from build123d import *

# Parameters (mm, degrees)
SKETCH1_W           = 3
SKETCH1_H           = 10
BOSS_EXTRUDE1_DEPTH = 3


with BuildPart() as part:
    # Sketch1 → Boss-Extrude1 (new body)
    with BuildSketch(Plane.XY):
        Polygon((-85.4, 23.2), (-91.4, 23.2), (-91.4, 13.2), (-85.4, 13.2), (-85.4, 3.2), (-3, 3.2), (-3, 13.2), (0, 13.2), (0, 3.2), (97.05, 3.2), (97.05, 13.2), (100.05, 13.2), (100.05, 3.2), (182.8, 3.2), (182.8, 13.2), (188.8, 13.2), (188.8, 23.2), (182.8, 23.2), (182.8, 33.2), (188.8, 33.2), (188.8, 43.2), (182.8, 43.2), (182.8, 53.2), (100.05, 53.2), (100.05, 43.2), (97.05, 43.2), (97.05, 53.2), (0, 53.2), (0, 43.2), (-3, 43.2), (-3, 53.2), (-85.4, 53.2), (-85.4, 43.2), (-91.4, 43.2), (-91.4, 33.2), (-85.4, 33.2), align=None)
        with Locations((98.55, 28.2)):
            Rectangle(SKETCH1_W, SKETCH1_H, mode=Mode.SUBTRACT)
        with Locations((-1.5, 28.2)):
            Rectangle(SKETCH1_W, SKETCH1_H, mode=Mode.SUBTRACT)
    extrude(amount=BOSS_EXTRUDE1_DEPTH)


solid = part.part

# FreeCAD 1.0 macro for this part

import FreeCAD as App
import Part
import Sketcher
Q = App.Units.Quantity


def add_polygon(sketch, points):
    """Adds a closed chain of lines whose ends are joined by coincident constraints."""
    first, n = sketch.GeometryCount, len(points)
    for a, b in zip(points, points[1:] + points[:1]):
        sketch.addGeometry(Part.LineSegment(App.Vector(*a, 0), App.Vector(*b, 0)), False)
    for i in range(n):
        sketch.addConstraint(Sketcher.Constraint("Coincident", first + i, 2, first + (i + 1) % n, 1))

doc = App.newDocument("Part")
params = doc.addObject("Spreadsheet::Sheet", "Params")
for row, (alias, value) in enumerate([
    ("sketch1_width", "6 mm"),
    ("sketch1_width2", "3 mm"),
    ("sketch1_height", "10 mm"),
    ("sketch1_width3", "82.4 mm"),
    ("sketch1_width4", "97.05 mm"),
    ("pad1_length", "3 mm"),
], start=1):
    params.set(f"A{row}", alias)
    params.set(f"B{row}", "=" + value)
    params.setAlias(f"B{row}", alias)

body = doc.addObject("PartDesign::Body", "Body")

sketch1 = body.newObject("Sketcher::SketchObject", "Sketch")
sketch1.AttachmentSupport = (doc.getObject("XY_Plane"), [""])
sketch1.MapMode = "FlatFace"
add_polygon(sketch1, [(-85.4, 23.2), (-91.4, 23.2), (-91.4, 13.2), (-85.4, 13.2), (-85.4, 3.2), (-3, 3.2), (-3, 13.2), (0, 13.2), (0, 3.2), (97.05, 3.2), (97.05, 13.2), (100.05, 13.2), (100.05, 3.2), (182.8, 3.2), (182.8, 13.2), (188.8, 13.2), (188.8, 23.2), (182.8, 23.2), (182.8, 33.2), (188.8, 33.2), (188.8, 43.2), (182.8, 43.2), (182.8, 53.2), (100.05, 53.2), (100.05, 43.2), (97.05, 43.2), (97.05, 53.2), (0, 53.2), (0, 43.2), (-3, 43.2), (-3, 53.2), (-85.4, 53.2), (-85.4, 43.2), (-91.4, 43.2), (-91.4, 33.2), (-85.4, 33.2)])
add_polygon(sketch1, [(0, 23.2), (-3, 23.2), (-3, 33.2), (0, 33.2)])
add_polygon(sketch1, [(100.05, 23.2), (97.05, 23.2), (97.05, 33.2), (100.05, 33.2)])
sketch1.addConstraint([
    Sketcher.Constraint("Horizontal", 0),
    Sketcher.Constraint("Vertical", 1),
    Sketcher.Constraint("Horizontal", 2),
    Sketcher.Constraint("Vertical", 3),
    Sketcher.Constraint("Horizontal", 4),
    Sketcher.Constraint("Vertical", 5),
    Sketcher.Constraint("Horizontal", 6),
    Sketcher.Constraint("Vertical", 7),
    Sketcher.Constraint("Horizontal", 8),
    Sketcher.Constraint("Vertical", 9),
    Sketcher.Constraint("Horizontal", 10),
    Sketcher.Constraint("Vertical", 11),
    Sketcher.Constraint("Horizontal", 12),
    Sketcher.Constraint("Vertical", 13),
    Sketcher.Constraint("Horizontal", 14),
    Sketcher.Constraint("Vertical", 15),
    Sketcher.Constraint("Horizontal", 16),
    Sketcher.Constraint("Vertical", 17),
    Sketcher.Constraint("Horizontal", 18),
    Sketcher.Constraint("Vertical", 19),
    Sketcher.Constraint("Horizontal", 20),
    Sketcher.Constraint("Vertical", 21),
    Sketcher.Constraint("Horizontal", 22),
    Sketcher.Constraint("Vertical", 23),
    Sketcher.Constraint("Horizontal", 24),
    Sketcher.Constraint("Vertical", 25),
    Sketcher.Constraint("Horizontal", 26),
    Sketcher.Constraint("Vertical", 27),
    Sketcher.Constraint("Horizontal", 28),
    Sketcher.Constraint("Vertical", 29),
    Sketcher.Constraint("Horizontal", 30),
    Sketcher.Constraint("Vertical", 31),
    Sketcher.Constraint("Horizontal", 32),
    Sketcher.Constraint("Vertical", 33),
    Sketcher.Constraint("Horizontal", 34),
    Sketcher.Constraint("Vertical", 35),
    Sketcher.Constraint("Horizontal", 36),
    Sketcher.Constraint("Vertical", 37),
    Sketcher.Constraint("Horizontal", 38),
    Sketcher.Constraint("Vertical", 39),
    Sketcher.Constraint("Horizontal", 40),
    Sketcher.Constraint("Vertical", 41),
    Sketcher.Constraint("Horizontal", 42),
    Sketcher.Constraint("Vertical", 43),
    Sketcher.Constraint("PointOnObject", 6, 2, -2),
    Sketcher.Constraint("PointOnObject", 26, 2, -2),
    Sketcher.Constraint("PointOnObject", 38, 2, -2),
    Sketcher.Constraint("Horizontal", 2, 2, 5, 2),
    Sketcher.Constraint("Horizontal", 4, 2, 7, 2),
    Sketcher.Constraint("Horizontal", 6, 2, 9, 2),
    Sketcher.Constraint("Horizontal", 8, 2, 11, 2),
    Sketcher.Constraint("Horizontal", 10, 2, 13, 2),
    Sketcher.Constraint("Horizontal", 0, 2, 15, 2),
    Sketcher.Constraint("Horizontal", 20, 2, 23, 2),
    Sketcher.Constraint("Horizontal", 22, 2, 25, 2),
    Sketcher.Constraint("Horizontal", 24, 2, 27, 2),
    Sketcher.Constraint("Horizontal", 26, 2, 29, 2),
    Sketcher.Constraint("Horizontal", 28, 2, 31, 2),
    Sketcher.Constraint("Horizontal", 18, 2, 33, 2),
    Sketcher.Constraint("Horizontal", 35, 2, 36, 2),
    Sketcher.Constraint("Horizontal", 34, 2, 37, 2),
    Sketcher.Constraint("Horizontal", 39, 2, 40, 2),
    Sketcher.Constraint("Horizontal", 38, 2, 41, 2),
    Sketcher.Constraint("Vertical", 13, 2, 16, 2),
    Sketcher.Constraint("Vertical", 15, 2, 18, 2),
    Sketcher.Constraint("Vertical", 17, 2, 20, 2),
    Sketcher.Constraint("Vertical", 11, 2, 22, 2),
    Sketcher.Constraint("Vertical", 9, 2, 24, 2),
    Sketcher.Constraint("Vertical", 5, 2, 28, 2),
    Sketcher.Constraint("Vertical", 3, 2, 30, 2),
    Sketcher.Constraint("Vertical", 1, 2, 32, 2),
    Sketcher.Constraint("Vertical", 31, 2, 34, 2),
    Sketcher.Constraint("Vertical", 29, 2, 36, 2),
    Sketcher.Constraint("Vertical", 25, 2, 40, 2),
    Sketcher.Constraint("Vertical", 23, 2, 42, 2),
    Sketcher.Constraint("Equal", 6, 10),
    Sketcher.Constraint("Equal", 2, 14),
    Sketcher.Constraint("Equal", 1, 3),
    Sketcher.Constraint("Equal", 15, 17),
    Sketcher.Constraint("Equal", 17, 19),
    Sketcher.Constraint("Equal", 19, 21),
    Sketcher.Constraint("DistanceX", 0, 2, 0, 1, Q("6 mm")),
    Sketcher.Constraint("DistanceX", 6, 1, 6, 2, Q("3 mm")),
    Sketcher.Constraint("DistanceY", 1, 2, 1, 1, Q("10 mm")),
    Sketcher.Constraint("DistanceX", 4, 1, 4, 2, Q("82.4 mm")),
    Sketcher.Constraint("DistanceX", 8, 1, 8, 2, Q("97.05 mm")),
    Sketcher.Constraint("DistanceX", 12, 1, 12, 2, Q("82.75 mm")),
    Sketcher.Constraint("DistanceY", -1, 1, 0, 2, Q("23.2 mm")),
])
sketch1.setExpression("Constraints[125]", "Params.sketch1_width")
sketch1.setExpression("Constraints[126]", "Params.sketch1_width2")
sketch1.setExpression("Constraints[127]", "Params.sketch1_height")
sketch1.setExpression("Constraints[128]", "Params.sketch1_width3")
sketch1.setExpression("Constraints[129]", "Params.sketch1_width4")
pad1 = body.newObject("PartDesign::Pad", "Pad")
pad1.Profile = sketch1
pad1.setExpression("Length", "Params.pad1_length")

doc.recompute()
